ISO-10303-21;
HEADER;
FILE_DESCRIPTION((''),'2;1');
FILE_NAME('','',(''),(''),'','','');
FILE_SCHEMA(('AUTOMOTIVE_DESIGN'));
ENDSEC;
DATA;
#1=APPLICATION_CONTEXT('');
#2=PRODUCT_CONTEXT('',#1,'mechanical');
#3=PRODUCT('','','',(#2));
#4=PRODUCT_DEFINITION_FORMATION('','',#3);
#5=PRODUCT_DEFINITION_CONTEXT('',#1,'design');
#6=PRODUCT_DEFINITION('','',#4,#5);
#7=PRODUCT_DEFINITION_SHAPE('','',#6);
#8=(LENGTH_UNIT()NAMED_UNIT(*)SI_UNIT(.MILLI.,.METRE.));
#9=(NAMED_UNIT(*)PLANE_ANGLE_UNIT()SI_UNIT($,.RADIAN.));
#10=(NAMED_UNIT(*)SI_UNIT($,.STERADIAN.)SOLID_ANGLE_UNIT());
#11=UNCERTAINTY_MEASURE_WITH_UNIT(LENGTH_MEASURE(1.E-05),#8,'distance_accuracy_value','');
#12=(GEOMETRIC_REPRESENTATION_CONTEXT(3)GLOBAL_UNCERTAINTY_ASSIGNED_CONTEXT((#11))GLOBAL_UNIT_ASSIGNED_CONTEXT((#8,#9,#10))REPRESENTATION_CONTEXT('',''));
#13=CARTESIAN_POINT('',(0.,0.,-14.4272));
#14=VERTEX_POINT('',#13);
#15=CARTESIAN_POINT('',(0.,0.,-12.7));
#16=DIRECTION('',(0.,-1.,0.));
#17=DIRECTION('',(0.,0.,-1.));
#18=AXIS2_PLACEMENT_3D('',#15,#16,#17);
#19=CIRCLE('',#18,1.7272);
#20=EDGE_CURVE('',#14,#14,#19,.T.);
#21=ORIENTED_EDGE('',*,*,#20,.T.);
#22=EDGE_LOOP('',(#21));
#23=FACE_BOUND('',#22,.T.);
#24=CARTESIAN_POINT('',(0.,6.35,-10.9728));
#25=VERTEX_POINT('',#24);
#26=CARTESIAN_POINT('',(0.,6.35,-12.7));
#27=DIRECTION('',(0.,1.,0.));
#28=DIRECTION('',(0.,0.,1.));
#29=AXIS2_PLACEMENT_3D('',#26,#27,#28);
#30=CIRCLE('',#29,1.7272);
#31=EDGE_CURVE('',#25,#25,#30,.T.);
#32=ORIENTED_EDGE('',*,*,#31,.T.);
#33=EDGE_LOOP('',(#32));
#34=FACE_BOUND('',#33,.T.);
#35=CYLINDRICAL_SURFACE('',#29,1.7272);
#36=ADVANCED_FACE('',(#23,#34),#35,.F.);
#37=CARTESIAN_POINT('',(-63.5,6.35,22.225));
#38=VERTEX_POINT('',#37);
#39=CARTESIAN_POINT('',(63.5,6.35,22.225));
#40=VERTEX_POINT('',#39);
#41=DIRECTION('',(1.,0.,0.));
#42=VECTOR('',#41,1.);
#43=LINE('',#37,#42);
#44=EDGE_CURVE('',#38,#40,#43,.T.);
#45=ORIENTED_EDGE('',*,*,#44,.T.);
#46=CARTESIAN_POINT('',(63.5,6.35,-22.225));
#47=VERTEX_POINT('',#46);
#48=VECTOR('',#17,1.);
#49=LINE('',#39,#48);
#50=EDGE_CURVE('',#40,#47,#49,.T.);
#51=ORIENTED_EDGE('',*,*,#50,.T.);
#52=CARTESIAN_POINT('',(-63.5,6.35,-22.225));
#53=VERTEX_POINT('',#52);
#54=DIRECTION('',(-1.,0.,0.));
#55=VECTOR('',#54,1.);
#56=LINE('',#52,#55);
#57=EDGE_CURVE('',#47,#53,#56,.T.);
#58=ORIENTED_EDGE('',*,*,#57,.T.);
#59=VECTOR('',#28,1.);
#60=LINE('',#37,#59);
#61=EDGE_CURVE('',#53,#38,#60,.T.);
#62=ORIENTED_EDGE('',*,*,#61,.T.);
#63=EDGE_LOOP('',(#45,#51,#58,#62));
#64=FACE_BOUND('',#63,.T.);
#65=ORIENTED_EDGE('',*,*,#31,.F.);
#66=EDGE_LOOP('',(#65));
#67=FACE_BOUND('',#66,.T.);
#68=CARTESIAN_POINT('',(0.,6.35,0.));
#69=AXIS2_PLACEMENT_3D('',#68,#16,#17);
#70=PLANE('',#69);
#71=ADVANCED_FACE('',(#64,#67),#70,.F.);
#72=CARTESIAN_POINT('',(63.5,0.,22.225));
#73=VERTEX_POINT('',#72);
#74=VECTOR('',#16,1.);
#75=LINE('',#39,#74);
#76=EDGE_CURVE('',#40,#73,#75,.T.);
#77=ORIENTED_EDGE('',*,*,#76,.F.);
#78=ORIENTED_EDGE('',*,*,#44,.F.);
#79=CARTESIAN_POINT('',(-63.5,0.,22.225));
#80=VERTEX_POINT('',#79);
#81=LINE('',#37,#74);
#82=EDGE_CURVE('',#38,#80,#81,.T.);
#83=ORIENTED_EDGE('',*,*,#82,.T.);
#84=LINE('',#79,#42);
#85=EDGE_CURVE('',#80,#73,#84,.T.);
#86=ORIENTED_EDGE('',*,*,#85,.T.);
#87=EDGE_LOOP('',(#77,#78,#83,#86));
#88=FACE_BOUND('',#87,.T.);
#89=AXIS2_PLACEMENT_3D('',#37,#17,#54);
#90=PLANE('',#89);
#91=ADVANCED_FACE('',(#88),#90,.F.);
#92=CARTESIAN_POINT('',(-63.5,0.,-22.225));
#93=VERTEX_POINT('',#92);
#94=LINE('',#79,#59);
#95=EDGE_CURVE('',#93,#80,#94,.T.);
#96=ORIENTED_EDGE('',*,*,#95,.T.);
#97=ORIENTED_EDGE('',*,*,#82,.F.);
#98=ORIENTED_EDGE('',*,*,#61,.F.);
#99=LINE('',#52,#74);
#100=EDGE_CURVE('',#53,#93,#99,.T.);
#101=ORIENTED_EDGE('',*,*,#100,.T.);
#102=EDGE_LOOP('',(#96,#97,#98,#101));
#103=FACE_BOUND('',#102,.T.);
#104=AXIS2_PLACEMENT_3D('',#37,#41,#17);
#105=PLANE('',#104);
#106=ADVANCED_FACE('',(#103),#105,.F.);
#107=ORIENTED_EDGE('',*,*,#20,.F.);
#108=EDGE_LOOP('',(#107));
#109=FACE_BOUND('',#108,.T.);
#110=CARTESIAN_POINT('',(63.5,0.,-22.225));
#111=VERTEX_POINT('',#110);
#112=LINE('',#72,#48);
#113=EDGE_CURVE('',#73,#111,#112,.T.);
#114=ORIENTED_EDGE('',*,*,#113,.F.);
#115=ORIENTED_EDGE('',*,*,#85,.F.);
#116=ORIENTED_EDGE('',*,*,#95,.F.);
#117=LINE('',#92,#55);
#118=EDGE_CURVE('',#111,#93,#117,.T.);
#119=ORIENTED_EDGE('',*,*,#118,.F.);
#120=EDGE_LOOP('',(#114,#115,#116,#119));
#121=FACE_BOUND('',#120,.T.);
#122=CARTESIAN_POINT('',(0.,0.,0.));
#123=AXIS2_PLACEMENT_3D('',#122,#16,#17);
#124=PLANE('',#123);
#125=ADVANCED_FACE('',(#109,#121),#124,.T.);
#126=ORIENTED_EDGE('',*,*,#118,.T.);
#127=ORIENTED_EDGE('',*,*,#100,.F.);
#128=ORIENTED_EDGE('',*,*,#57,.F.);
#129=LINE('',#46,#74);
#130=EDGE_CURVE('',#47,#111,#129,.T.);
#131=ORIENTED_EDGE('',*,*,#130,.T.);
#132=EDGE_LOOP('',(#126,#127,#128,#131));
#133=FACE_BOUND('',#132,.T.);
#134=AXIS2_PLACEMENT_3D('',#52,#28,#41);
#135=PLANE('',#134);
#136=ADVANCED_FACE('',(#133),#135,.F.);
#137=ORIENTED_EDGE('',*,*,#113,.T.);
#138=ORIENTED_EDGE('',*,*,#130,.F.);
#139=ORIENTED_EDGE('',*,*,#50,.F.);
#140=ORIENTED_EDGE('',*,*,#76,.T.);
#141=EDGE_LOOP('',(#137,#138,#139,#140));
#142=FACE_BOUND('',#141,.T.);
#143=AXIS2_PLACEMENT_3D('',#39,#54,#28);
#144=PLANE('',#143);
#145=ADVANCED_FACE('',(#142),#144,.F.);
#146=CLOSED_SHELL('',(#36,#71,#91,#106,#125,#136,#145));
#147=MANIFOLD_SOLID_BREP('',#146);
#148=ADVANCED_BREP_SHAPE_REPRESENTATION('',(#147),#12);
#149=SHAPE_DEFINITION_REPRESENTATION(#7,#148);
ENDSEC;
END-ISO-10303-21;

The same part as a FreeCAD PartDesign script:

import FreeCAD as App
import Part
import Sketcher
Q = App.Units.Quantity


def add_polygon(sketch, points):
    """Adds a closed chain of lines whose ends are joined by coincident constraints."""
    first, n = sketch.GeometryCount, len(points)
    for a, b in zip(points, points[1:] + points[:1]):
        sketch.addGeometry(Part.LineSegment(App.Vector(*a, 0), App.Vector(*b, 0)), False)
    for i in range(n):
        sketch.addConstraint(Sketcher.Constraint("Coincident", first + i, 2, first + (i + 1) % n, 1))

doc = App.newDocument("Part")
params = doc.addObject("Spreadsheet::Sheet", "Params")
for row, (alias, value) in enumerate([
    ("sketch1_width", "5 in"),
    ("sketch1_height", "1.75 in"),
    ("pad1_length", "0.25 in"),
    ("sketch2_diameter", "0.136 in"),
    ("hole_diameter", "0.136 in"),
    ("hole_depth", "0.49 in"),
], start=1):
    params.set(f"A{row}", alias)
    params.set(f"B{row}", "=" + value)
    params.setAlias(f"B{row}", alias)

body = doc.addObject("PartDesign::Body", "Body")

# Sketch on XZ plane
sketch1 = body.newObject("Sketcher::SketchObject", "Sketch")
sketch1.AttachmentSupport = (doc.getObject("XZ_Plane"), [""])
sketch1.MapMode = "FlatFace"
add_polygon(sketch1, [(-64, -22), (-64, 22), (64, 22), (64, -22)])  # lines 0-3
sketch1.addConstraint([
    Sketcher.Constraint("Vertical", 0),
    Sketcher.Constraint("Horizontal", 1),
    Sketcher.Constraint("Vertical", 2),
    Sketcher.Constraint("Horizontal", 3),
    Sketcher.Constraint("Symmetric", 0, 2, 2, 2, -1, 1),
    Sketcher.Constraint("DistanceX", 1, 1, 1, 2, Q("5 in")),
    Sketcher.Constraint("DistanceY", 0, 1, 0, 2, Q("1.75 in")),
])
sketch1.setExpression("Constraints[9]", "Params.sketch1_width")
sketch1.setExpression("Constraints[10]", "Params.sketch1_height")
pad1 = body.newObject("PartDesign::Pad", "Pad")
pad1.Profile = sketch1
pad1.setExpression("Length", "Params.pad1_length")
pad1.Reversed = True

# Sketch on XZ plane
sketch2 = body.newObject("Sketcher::SketchObject", "Sketch001")
sketch2.AttachmentSupport = (doc.getObject("XZ_Plane"), [""])
sketch2.MapMode = "FlatFace"
sketch2.AttachmentOffset = App.Placement(App.Vector(0, 0, -0.25 * 25.4), App.Rotation())
sketch2.addGeometry(Part.Circle(App.Vector(0, -12.7, 0), App.Vector(0, 0, 1), 1.7), False)
sketch2.addConstraint([
    Sketcher.Constraint("PointOnObject", 0, 3, -2),
    Sketcher.Constraint("Diameter", 0, Q("0.136 in")),
    Sketcher.Constraint("DistanceY", 0, 3, -1, 1, Q("0.5 in")),
])
sketch2.setExpression("Constraints[1]", "Params.sketch2_diameter")
doc.recompute()
hole = body.newObject("PartDesign::Hole", "Hole")
hole.Profile = sketch2
hole.ThreadType = "None"
hole.setExpression("Diameter", "Params.hole_diameter")
hole.DepthType = "Dimension"
hole.setExpression("Depth", "Params.hole_depth")
hole.DrillPoint = "Angled"
hole.DrillPointAngle = 118
hole.Reversed = True

doc.recompute()
